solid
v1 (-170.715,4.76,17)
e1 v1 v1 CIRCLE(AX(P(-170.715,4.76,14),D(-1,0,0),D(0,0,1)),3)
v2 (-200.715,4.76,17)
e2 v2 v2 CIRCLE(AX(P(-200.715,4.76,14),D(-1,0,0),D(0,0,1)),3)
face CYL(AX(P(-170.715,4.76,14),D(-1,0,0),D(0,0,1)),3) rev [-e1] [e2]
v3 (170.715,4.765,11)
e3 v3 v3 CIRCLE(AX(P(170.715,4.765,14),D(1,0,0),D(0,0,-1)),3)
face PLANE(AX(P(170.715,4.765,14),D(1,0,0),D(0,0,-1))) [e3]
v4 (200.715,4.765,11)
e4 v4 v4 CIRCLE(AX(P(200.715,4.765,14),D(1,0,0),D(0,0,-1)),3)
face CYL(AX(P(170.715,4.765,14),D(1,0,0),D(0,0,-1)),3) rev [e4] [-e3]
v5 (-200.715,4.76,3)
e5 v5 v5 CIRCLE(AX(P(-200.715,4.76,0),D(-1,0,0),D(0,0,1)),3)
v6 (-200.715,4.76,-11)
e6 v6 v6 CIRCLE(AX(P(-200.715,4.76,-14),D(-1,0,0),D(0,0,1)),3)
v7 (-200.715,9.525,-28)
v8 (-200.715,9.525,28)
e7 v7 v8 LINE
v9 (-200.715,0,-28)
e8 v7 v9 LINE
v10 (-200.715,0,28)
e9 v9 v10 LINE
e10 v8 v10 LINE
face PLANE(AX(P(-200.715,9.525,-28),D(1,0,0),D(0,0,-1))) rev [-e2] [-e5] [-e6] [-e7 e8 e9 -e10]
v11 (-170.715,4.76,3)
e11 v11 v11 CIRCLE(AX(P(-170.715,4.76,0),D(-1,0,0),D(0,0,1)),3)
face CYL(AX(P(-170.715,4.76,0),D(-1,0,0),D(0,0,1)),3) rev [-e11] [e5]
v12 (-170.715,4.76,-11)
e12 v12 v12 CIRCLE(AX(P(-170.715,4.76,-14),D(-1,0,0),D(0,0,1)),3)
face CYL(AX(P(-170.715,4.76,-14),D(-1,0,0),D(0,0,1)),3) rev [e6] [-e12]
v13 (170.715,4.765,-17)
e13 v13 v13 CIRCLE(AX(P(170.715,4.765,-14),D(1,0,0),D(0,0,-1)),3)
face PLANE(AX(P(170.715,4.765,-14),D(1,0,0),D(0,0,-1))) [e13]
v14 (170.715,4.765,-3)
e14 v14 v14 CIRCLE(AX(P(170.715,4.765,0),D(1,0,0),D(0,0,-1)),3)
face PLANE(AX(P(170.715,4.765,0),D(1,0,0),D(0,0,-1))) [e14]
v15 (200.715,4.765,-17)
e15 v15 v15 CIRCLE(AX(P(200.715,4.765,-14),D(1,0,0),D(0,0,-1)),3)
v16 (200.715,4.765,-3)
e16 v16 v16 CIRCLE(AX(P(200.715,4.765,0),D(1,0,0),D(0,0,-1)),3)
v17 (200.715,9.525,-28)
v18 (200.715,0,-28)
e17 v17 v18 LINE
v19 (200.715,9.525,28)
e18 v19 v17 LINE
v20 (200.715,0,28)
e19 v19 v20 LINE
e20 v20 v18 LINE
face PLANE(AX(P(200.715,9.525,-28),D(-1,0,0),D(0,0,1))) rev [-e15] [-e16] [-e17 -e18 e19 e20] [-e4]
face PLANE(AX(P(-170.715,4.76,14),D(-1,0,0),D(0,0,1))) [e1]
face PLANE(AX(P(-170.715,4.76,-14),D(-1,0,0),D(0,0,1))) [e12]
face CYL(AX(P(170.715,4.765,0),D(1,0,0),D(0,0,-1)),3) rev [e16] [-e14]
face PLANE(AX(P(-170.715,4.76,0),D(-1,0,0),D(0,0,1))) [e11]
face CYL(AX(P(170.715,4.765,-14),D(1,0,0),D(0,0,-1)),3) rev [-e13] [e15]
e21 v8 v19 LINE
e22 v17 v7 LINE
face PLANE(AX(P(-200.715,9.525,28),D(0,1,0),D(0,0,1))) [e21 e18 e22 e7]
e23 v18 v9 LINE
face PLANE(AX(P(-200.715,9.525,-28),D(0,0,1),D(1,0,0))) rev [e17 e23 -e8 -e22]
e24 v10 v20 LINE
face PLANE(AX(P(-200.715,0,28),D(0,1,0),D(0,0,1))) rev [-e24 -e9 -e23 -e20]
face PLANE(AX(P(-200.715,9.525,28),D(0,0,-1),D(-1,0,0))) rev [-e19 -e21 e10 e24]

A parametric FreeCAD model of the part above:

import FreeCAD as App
import Part
import Sketcher

V = App.Vector
Q = App.Units.Quantity

doc = App.newDocument("Part")
body = doc.addObject("PartDesign::Body", "Body")

# Sketch on XZ plane
sketch1 = doc.addObject("Sketcher::SketchObject", "Sketch")
body.addObject(sketch1)
sketch1.AttachmentSupport = (doc.XZ_Plane, [""])
sketch1.MapMode = "FlatFace"
sketch1.addGeometry(Part.LineSegment(V(-201, -28, 0), V(-201, 28, 0)), False)
sketch1.addGeometry(Part.LineSegment(V(-201, 28, 0), V(201, 28, 0)), False)
sketch1.addGeometry(Part.LineSegment(V(201, 28, 0), V(201, -28, 0)), False)
sketch1.addGeometry(Part.LineSegment(V(201, -28, 0), V(-201, -28, 0)), False)
sketch1.addConstraint(Sketcher.Constraint("Coincident", 0, 2, 1, 1))
sketch1.addConstraint(Sketcher.Constraint("Coincident", 1, 2, 2, 1))
sketch1.addConstraint(Sketcher.Constraint("Coincident", 2, 2, 3, 1))
sketch1.addConstraint(Sketcher.Constraint("Coincident", 3, 2, 0, 1))
sketch1.addConstraint(Sketcher.Constraint("Vertical", 0))
sketch1.addConstraint(Sketcher.Constraint("Horizontal", 1))
sketch1.addConstraint(Sketcher.Constraint("Vertical", 2))
sketch1.addConstraint(Sketcher.Constraint("Horizontal", 3))
sketch1.addConstraint(Sketcher.Constraint("Symmetric", 0, 2, 2, 2, -1, 1))
sketch1.addConstraint(Sketcher.Constraint("DistanceY", 0, 1, 0, 2, Q("56 mm")))
sketch1.addConstraint(Sketcher.Constraint("DistanceX", 1, 1, 1, 2, Q("401.43 mm")))
pad1 = doc.addObject("PartDesign::Pad", "Pad")
body.addObject(pad1)
pad1.Profile = sketch1
pad1.Length = 9.525
pad1.Reversed = True

# Sketch on YZ plane
sketch2 = doc.addObject("Sketcher::SketchObject", "Sketch001")
body.addObject(sketch2)
sketch2.AttachmentSupport = (doc.YZ_Plane, [""])
sketch2.MapMode = "FlatFace"
sketch2.AttachmentOffset = App.Placement(V(0, 0, -200.715), App.Rotation())
sketch2.addGeometry(Part.Circle(V(4.8, 14, 0), V(0, 0, 1), 3), False)
sketch2.addGeometry(Part.Circle(V(4.8, 0, 0), V(0, 0, 1), 3), False)
sketch2.addGeometry(Part.Circle(V(4.8, -14, 0), V(0, 0, 1), 3), False)
sketch2.addConstraint(Sketcher.Constraint("Equal", 0, 1))
sketch2.addConstraint(Sketcher.Constraint("Equal", 1, 2))
sketch2.addConstraint(Sketcher.Constraint("Symmetric", 0, 3, 2, 3, -1))
sketch2.addConstraint(Sketcher.Constraint("PointOnObject", 1, 3, -1))
sketch2.addConstraint(Sketcher.Constraint("Vertical", 0, 3, 1, 3))
sketch2.addConstraint(Sketcher.Constraint("Diameter", 0, Q("6 mm")))
sketch2.addConstraint(Sketcher.Constraint("DistanceY", -1, 1, 0, 3, Q("14 mm")))
sketch2.addConstraint(Sketcher.Constraint("DistanceX", -1, 1, 0, 3, Q("4.76 mm")))
pocket1 = doc.addObject("PartDesign::Pocket", "Pocket")
body.addObject(pocket1)
pocket1.Profile = sketch2
pocket1.Length = 30
pocket1.Reversed = True

# Sketch on YZ plane
sketch3 = doc.addObject("Sketcher::SketchObject", "Sketch002")
body.addObject(sketch3)
sketch3.AttachmentSupport = (doc.YZ_Plane, [""])
sketch3.MapMode = "FlatFace"
sketch3.AttachmentOffset = App.Placement(V(0, 0, 200.715), App.Rotation())
sketch3.addGeometry(Part.Circle(V(4.8, -14, 0), V(0, 0, 1), 3), False)
sketch3.addGeometry(Part.Circle(V(4.8, 0, 0), V(0, 0, 1), 3), False)
sketch3.addGeometry(Part.Circle(V(4.8, 14, 0), V(0, 0, 1), 3), False)
sketch3.addConstraint(Sketcher.Constraint("Equal", 0, 1))
sketch3.addConstraint(Sketcher.Constraint("Equal", 1, 2))
sketch3.addConstraint(Sketcher.Constraint("Symmetric", 0, 3, 2, 3, -1))
sketch3.addConstraint(Sketcher.Constraint("PointOnObject", 1, 3, -1))
sketch3.addConstraint(Sketcher.Constraint("Vertical", 0, 3, 1, 3))
sketch3.addConstraint(Sketcher.Constraint("Diameter", 0, Q("6 mm")))
sketch3.addConstraint(Sketcher.Constraint("DistanceY", 0, 3, -1, 1, Q("14 mm")))
sketch3.addConstraint(Sketcher.Constraint("DistanceX", -1, 1, 0, 3, Q("4.765 mm")))
pocket2 = doc.addObject("PartDesign::Pocket", "Pocket001")
body.addObject(pocket2)
pocket2.Profile = sketch3
pocket2.Length = 30

doc.recompute()
